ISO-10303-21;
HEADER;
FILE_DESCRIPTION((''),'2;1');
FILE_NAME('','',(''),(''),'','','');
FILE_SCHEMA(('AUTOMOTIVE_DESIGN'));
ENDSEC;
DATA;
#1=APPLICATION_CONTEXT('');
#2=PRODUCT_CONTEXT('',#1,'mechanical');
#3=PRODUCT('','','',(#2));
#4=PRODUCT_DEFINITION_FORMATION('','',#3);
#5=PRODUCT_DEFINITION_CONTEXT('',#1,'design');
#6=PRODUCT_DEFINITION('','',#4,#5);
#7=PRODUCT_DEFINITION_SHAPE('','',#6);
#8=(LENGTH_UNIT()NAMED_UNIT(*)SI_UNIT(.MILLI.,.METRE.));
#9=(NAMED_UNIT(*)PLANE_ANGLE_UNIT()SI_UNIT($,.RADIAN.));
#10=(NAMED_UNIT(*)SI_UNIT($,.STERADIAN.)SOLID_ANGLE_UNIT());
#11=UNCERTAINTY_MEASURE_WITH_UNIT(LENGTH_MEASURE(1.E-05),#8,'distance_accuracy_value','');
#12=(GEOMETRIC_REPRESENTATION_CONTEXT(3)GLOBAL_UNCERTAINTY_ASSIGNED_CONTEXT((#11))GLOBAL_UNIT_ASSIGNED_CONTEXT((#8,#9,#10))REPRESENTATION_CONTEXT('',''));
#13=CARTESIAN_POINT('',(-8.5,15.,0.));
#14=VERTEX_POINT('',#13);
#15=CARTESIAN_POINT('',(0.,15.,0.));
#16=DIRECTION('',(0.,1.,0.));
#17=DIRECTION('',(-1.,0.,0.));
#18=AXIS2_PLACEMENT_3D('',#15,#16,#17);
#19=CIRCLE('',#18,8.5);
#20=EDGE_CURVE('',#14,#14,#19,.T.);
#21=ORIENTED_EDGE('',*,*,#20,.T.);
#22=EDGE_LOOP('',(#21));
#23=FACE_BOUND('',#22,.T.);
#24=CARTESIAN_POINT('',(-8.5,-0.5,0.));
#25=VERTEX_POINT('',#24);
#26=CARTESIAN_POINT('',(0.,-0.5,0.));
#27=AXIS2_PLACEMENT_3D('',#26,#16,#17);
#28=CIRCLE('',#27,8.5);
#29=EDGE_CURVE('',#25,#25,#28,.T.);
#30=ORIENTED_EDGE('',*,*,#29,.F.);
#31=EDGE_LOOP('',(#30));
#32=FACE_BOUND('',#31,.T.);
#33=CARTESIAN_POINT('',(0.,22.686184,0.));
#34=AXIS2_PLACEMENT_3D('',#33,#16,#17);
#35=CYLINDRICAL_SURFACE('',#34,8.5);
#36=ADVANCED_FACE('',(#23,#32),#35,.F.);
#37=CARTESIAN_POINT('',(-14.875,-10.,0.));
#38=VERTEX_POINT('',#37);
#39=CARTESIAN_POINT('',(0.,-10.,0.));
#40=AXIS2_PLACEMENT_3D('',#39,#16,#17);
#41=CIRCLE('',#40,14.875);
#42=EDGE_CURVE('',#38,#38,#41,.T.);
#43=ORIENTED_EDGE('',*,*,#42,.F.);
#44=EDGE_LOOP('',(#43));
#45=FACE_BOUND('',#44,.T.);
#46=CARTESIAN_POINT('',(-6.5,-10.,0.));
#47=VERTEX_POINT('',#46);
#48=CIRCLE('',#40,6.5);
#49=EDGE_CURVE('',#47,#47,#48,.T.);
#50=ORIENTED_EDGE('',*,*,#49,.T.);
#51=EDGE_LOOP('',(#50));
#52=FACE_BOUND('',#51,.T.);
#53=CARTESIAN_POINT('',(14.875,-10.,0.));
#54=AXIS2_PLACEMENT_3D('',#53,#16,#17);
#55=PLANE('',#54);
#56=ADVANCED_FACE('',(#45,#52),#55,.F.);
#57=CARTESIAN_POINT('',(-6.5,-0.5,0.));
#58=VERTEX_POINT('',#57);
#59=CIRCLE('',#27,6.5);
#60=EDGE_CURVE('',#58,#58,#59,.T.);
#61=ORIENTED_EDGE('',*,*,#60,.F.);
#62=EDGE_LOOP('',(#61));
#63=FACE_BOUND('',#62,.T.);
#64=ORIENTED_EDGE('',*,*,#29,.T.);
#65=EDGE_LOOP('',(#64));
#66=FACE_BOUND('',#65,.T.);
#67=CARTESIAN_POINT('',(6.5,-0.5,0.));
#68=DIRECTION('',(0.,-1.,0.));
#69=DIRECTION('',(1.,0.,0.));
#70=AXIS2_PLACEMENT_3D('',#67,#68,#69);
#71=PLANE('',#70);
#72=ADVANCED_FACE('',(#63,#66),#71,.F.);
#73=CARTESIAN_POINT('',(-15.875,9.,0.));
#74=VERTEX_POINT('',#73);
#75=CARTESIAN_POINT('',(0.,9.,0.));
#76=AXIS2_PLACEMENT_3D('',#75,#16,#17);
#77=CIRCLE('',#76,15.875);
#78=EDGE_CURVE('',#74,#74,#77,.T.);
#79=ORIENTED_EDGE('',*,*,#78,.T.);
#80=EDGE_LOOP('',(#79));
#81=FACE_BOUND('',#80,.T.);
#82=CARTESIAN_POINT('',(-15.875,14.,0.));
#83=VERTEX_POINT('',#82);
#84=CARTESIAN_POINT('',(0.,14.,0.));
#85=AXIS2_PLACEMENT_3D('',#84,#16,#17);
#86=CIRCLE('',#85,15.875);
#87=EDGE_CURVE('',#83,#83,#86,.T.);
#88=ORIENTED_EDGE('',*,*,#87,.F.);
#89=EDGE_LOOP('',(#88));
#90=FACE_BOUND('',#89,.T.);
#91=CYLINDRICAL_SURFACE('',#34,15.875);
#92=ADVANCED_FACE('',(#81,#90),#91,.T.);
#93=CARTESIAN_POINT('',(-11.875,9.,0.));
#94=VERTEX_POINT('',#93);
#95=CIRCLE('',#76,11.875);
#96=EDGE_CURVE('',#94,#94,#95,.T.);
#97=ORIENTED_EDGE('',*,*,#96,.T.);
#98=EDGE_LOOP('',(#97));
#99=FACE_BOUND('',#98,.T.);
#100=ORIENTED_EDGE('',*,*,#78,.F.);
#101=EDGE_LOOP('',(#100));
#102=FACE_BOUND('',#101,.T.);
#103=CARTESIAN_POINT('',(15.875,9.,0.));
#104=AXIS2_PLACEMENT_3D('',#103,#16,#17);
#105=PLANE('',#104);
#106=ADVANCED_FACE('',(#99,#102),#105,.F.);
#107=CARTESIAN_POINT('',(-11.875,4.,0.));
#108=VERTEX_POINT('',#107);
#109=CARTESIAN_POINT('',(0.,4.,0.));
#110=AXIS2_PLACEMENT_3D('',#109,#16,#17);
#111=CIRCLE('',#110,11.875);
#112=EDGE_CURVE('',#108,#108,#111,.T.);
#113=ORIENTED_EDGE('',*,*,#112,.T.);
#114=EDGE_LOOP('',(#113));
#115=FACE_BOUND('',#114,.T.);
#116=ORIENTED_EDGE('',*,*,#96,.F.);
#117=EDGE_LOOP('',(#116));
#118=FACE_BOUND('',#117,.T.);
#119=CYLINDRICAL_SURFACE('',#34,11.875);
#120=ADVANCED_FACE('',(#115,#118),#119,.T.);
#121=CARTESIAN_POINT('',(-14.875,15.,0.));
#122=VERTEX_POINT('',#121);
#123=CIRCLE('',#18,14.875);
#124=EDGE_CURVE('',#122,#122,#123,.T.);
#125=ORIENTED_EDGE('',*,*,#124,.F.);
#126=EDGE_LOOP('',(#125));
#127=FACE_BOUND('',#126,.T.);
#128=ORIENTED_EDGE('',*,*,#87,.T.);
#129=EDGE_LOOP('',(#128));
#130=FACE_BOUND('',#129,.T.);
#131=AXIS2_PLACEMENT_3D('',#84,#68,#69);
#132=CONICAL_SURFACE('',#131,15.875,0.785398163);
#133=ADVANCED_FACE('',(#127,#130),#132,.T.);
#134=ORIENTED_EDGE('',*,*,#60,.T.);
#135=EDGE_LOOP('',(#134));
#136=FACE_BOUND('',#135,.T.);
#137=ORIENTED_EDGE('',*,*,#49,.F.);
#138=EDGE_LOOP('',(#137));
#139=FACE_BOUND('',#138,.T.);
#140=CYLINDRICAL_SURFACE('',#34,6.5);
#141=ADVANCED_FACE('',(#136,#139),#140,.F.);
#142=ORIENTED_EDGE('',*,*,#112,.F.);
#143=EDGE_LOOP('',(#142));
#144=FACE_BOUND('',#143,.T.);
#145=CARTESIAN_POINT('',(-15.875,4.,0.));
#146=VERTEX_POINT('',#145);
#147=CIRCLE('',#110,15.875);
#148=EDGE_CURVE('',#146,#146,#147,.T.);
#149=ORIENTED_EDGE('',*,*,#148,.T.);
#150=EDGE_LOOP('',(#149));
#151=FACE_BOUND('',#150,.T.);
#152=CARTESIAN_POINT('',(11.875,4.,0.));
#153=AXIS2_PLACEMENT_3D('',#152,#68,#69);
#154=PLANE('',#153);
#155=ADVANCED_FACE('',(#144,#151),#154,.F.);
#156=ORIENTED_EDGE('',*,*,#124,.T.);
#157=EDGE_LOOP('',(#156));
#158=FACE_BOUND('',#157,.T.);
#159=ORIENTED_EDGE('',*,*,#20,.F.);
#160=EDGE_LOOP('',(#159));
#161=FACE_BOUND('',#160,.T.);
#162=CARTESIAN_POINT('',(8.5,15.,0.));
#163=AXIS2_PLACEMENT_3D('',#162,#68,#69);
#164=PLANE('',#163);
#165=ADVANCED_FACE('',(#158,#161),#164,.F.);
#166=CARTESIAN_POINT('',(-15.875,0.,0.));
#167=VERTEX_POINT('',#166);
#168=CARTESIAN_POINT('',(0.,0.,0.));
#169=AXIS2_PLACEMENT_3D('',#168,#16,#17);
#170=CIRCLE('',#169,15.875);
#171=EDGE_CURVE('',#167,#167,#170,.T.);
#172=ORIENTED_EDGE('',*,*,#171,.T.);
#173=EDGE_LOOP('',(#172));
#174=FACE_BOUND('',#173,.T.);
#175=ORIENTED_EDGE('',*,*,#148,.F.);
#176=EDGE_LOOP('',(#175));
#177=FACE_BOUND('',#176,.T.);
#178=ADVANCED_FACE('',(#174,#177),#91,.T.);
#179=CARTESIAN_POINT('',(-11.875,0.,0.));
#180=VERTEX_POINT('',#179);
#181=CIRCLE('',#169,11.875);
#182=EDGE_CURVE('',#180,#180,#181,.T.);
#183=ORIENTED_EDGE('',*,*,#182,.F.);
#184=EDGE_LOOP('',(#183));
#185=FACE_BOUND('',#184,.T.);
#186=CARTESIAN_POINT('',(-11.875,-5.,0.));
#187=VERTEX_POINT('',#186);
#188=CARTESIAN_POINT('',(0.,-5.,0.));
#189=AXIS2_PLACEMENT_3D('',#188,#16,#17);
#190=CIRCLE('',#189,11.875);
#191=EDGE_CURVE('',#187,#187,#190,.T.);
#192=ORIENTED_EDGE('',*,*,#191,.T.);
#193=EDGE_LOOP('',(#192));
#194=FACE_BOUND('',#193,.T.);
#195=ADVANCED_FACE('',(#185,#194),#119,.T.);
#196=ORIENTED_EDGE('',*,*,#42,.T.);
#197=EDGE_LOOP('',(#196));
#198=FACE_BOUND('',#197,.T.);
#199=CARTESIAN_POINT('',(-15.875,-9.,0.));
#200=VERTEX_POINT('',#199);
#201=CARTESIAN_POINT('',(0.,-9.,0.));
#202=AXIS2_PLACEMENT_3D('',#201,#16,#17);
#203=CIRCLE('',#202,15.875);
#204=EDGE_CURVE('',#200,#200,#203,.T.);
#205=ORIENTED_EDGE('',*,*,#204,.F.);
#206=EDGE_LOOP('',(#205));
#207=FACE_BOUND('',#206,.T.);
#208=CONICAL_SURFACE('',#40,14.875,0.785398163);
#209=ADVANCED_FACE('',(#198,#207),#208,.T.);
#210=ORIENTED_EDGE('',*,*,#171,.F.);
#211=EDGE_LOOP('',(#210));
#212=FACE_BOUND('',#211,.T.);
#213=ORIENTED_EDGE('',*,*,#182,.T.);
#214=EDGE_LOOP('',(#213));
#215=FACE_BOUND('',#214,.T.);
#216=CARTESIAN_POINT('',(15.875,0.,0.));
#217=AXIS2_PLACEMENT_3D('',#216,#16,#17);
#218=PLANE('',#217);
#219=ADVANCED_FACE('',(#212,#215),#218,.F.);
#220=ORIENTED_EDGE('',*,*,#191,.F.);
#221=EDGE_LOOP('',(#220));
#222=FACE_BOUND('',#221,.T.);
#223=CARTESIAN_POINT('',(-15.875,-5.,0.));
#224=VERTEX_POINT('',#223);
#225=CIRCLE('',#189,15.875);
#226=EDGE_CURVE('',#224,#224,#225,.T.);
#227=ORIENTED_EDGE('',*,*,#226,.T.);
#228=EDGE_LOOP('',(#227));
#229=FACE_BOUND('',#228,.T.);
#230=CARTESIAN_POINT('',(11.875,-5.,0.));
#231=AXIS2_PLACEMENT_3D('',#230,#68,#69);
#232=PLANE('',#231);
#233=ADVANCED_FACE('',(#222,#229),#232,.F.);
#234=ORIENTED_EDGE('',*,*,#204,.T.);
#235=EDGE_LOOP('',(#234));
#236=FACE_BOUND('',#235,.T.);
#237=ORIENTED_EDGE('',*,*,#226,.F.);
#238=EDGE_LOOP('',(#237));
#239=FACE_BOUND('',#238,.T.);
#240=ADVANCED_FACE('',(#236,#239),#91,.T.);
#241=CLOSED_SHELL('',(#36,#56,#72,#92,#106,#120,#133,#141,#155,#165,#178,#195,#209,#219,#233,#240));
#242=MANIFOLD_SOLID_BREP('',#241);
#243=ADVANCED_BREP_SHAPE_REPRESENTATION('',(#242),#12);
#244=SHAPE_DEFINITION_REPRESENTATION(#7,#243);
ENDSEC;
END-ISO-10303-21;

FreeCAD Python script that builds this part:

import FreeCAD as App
import Part
import Sketcher

V = App.Vector

doc = App.newDocument("Part")
body = doc.addObject("PartDesign::Body", "Body")

sketch1 = doc.addObject("Sketcher::SketchObject", "Sketch")
body.addObject(sketch1)
sketch1.AttachmentSupport = (doc.XY_Plane, [""])
sketch1.MapMode = "FlatFace"
sketch1.addGeometry(Part.LineSegment(V(6.5, -0.5, 0), V(6.5, -10, 0)), False)
sketch1.addGeometry(Part.LineSegment(V(6.5, -10, 0), V(14.875, -10, 0)), False)
sketch1.addGeometry(Part.LineSegment(V(14.875, -10, 0), V(15.875, -9, 0)), False)
sketch1.addGeometry(Part.LineSegment(V(15.875, -9, 0), V(15.875, -5, 0)), False)
sketch1.addGeometry(Part.LineSegment(V(15.875, -5, 0), V(11.875, -5, 0)), False)
sketch1.addGeometry(Part.LineSegment(V(11.875, -5, 0), V(11.875, 0, 0)), False)
sketch1.addGeometry(Part.LineSegment(V(11.875, 0, 0), V(15.875, 0, 0)), False)
sketch1.addGeometry(Part.LineSegment(V(15.875, 0, 0), V(15.875, 4, 0)), False)
sketch1.addGeometry(Part.LineSegment(V(15.875, 4, 0), V(11.875, 4, 0)), False)
sketch1.addGeometry(Part.LineSegment(V(11.875, 4, 0), V(11.875, 9, 0)), False)
sketch1.addGeometry(Part.LineSegment(V(11.875, 9, 0), V(15.875, 9, 0)), False)
sketch1.addGeometry(Part.LineSegment(V(15.875, 9, 0), V(15.875, 14, 0)), False)
sketch1.addGeometry(Part.LineSegment(V(15.875, 14, 0), V(14.875, 15, 0)), False)
sketch1.addGeometry(Part.LineSegment(V(14.875, 15, 0), V(8.5, 15, 0)), False)
sketch1.addGeometry(Part.LineSegment(V(8.5, 15, 0), V(8.5, -0.5, 0)), False)
sketch1.addGeometry(Part.LineSegment(V(8.5, -0.5, 0), V(6.5, -0.5, 0)), False)
sketch1.addConstraint(Sketcher.Constraint("Coincident", 0, 2, 1, 1))
sketch1.addConstraint(Sketcher.Constraint("Coincident", 1, 2, 2, 1))
sketch1.addConstraint(Sketcher.Constraint("Coincident", 2, 2, 3, 1))
sketch1.addConstraint(Sketcher.Constraint("Coincident", 3, 2, 4, 1))
sketch1.addConstraint(Sketcher.Constraint("Coincident", 4, 2, 5, 1))
sketch1.addConstraint(Sketcher.Constraint("Coincident", 5, 2, 6, 1))
sketch1.addConstraint(Sketcher.Constraint("Coincident", 6, 2, 7, 1))
sketch1.addConstraint(Sketcher.Constraint("Coincident", 7, 2, 8, 1))
sketch1.addConstraint(Sketcher.Constraint("Coincident", 8, 2, 9, 1))
sketch1.addConstraint(Sketcher.Constraint("Coincident", 9, 2, 10, 1))
sketch1.addConstraint(Sketcher.Constraint("Coincident", 10, 2, 11, 1))
sketch1.addConstraint(Sketcher.Constraint("Coincident", 11, 2, 12, 1))
sketch1.addConstraint(Sketcher.Constraint("Coincident", 12, 2, 13, 1))
sketch1.addConstraint(Sketcher.Constraint("Coincident", 13, 2, 14, 1))
sketch1.addConstraint(Sketcher.Constraint("Coincident", 14, 2, 15, 1))
sketch1.addConstraint(Sketcher.Constraint("Coincident", 15, 2, 0, 1))
sketch1.addConstraint(Sketcher.Constraint("Vertical", 0))
sketch1.addConstraint(Sketcher.Constraint("Horizontal", 1))
sketch1.addConstraint(Sketcher.Constraint("Vertical", 3))
sketch1.addConstraint(Sketcher.Constraint("Horizontal", 4))
sketch1.addConstraint(Sketcher.Constraint("Vertical", 5))
sketch1.addConstraint(Sketcher.Constraint("Horizontal", 6))
sketch1.addConstraint(Sketcher.Constraint("Vertical", 7))
sketch1.addConstraint(Sketcher.Constraint("Horizontal", 8))
sketch1.addConstraint(Sketcher.Constraint("Vertical", 9))
sketch1.addConstraint(Sketcher.Constraint("Horizontal", 10))
sketch1.addConstraint(Sketcher.Constraint("Vertical", 11))
sketch1.addConstraint(Sketcher.Constraint("Horizontal", 13))
sketch1.addConstraint(Sketcher.Constraint("Vertical", 14))
sketch1.addConstraint(Sketcher.Constraint("Horizontal", 15))
sketch1.addConstraint(Sketcher.Constraint("Symmetric", 2, 2, 10, 2, -1))
sketch1.addConstraint(Sketcher.Constraint("PointOnObject", 5, 2, -1))
sketch1.addConstraint(Sketcher.Constraint("Perpendicular", 2, 12))
sketch1.addConstraint(Sketcher.Constraint("Vertical", 3, 2, 6, 2))
sketch1.addConstraint(Sketcher.Constraint("Vertical", 5, 2, 8, 2))
sketch1.addConstraint(Sketcher.Constraint("Vertical", 1, 2, 12, 2))
sketch1.addConstraint(Sketcher.Constraint("Equal", 10, 3))
sketch1.addConstraint(Sketcher.Constraint("Equal", 3, 7))
sketch1.addConstraint(Sketcher.Constraint("Equal", 9, 11))
sketch1.addConstraint(Sketcher.Constraint("Equal", 2, 12))
sketch1.addConstraint(Sketcher.Constraint("DistanceX", 4, 2, 4, 1, 4.0))
sketch1.addConstraint(Sketcher.Constraint("DistanceX", 15, 2, 15, 1, 2.0))
sketch1.addConstraint(Sketcher.Constraint("DistanceY", 5, 1, 5, 2, 5.0))
sketch1.addConstraint(Sketcher.Constraint("DistanceY", 0, 2, 0, 1, 9.5))
sketch1.addConstraint(Sketcher.Constraint("DistanceY", 14, 2, 14, 1, 15.5))
sketch1.addConstraint(Sketcher.Constraint("DistanceX", -1, 1, 0, 2, 6.5))
sketch1.addConstraint(Sketcher.Constraint("DistanceX", 1, 1, 1, 2, 8.375))
revolution = doc.addObject("PartDesign::Revolution", "Revolution")
body.addObject(revolution)
revolution.Profile = sketch1
revolution.ReferenceAxis = (sketch1, ["V_Axis"])
revolution.Angle = 360

doc.recompute()
